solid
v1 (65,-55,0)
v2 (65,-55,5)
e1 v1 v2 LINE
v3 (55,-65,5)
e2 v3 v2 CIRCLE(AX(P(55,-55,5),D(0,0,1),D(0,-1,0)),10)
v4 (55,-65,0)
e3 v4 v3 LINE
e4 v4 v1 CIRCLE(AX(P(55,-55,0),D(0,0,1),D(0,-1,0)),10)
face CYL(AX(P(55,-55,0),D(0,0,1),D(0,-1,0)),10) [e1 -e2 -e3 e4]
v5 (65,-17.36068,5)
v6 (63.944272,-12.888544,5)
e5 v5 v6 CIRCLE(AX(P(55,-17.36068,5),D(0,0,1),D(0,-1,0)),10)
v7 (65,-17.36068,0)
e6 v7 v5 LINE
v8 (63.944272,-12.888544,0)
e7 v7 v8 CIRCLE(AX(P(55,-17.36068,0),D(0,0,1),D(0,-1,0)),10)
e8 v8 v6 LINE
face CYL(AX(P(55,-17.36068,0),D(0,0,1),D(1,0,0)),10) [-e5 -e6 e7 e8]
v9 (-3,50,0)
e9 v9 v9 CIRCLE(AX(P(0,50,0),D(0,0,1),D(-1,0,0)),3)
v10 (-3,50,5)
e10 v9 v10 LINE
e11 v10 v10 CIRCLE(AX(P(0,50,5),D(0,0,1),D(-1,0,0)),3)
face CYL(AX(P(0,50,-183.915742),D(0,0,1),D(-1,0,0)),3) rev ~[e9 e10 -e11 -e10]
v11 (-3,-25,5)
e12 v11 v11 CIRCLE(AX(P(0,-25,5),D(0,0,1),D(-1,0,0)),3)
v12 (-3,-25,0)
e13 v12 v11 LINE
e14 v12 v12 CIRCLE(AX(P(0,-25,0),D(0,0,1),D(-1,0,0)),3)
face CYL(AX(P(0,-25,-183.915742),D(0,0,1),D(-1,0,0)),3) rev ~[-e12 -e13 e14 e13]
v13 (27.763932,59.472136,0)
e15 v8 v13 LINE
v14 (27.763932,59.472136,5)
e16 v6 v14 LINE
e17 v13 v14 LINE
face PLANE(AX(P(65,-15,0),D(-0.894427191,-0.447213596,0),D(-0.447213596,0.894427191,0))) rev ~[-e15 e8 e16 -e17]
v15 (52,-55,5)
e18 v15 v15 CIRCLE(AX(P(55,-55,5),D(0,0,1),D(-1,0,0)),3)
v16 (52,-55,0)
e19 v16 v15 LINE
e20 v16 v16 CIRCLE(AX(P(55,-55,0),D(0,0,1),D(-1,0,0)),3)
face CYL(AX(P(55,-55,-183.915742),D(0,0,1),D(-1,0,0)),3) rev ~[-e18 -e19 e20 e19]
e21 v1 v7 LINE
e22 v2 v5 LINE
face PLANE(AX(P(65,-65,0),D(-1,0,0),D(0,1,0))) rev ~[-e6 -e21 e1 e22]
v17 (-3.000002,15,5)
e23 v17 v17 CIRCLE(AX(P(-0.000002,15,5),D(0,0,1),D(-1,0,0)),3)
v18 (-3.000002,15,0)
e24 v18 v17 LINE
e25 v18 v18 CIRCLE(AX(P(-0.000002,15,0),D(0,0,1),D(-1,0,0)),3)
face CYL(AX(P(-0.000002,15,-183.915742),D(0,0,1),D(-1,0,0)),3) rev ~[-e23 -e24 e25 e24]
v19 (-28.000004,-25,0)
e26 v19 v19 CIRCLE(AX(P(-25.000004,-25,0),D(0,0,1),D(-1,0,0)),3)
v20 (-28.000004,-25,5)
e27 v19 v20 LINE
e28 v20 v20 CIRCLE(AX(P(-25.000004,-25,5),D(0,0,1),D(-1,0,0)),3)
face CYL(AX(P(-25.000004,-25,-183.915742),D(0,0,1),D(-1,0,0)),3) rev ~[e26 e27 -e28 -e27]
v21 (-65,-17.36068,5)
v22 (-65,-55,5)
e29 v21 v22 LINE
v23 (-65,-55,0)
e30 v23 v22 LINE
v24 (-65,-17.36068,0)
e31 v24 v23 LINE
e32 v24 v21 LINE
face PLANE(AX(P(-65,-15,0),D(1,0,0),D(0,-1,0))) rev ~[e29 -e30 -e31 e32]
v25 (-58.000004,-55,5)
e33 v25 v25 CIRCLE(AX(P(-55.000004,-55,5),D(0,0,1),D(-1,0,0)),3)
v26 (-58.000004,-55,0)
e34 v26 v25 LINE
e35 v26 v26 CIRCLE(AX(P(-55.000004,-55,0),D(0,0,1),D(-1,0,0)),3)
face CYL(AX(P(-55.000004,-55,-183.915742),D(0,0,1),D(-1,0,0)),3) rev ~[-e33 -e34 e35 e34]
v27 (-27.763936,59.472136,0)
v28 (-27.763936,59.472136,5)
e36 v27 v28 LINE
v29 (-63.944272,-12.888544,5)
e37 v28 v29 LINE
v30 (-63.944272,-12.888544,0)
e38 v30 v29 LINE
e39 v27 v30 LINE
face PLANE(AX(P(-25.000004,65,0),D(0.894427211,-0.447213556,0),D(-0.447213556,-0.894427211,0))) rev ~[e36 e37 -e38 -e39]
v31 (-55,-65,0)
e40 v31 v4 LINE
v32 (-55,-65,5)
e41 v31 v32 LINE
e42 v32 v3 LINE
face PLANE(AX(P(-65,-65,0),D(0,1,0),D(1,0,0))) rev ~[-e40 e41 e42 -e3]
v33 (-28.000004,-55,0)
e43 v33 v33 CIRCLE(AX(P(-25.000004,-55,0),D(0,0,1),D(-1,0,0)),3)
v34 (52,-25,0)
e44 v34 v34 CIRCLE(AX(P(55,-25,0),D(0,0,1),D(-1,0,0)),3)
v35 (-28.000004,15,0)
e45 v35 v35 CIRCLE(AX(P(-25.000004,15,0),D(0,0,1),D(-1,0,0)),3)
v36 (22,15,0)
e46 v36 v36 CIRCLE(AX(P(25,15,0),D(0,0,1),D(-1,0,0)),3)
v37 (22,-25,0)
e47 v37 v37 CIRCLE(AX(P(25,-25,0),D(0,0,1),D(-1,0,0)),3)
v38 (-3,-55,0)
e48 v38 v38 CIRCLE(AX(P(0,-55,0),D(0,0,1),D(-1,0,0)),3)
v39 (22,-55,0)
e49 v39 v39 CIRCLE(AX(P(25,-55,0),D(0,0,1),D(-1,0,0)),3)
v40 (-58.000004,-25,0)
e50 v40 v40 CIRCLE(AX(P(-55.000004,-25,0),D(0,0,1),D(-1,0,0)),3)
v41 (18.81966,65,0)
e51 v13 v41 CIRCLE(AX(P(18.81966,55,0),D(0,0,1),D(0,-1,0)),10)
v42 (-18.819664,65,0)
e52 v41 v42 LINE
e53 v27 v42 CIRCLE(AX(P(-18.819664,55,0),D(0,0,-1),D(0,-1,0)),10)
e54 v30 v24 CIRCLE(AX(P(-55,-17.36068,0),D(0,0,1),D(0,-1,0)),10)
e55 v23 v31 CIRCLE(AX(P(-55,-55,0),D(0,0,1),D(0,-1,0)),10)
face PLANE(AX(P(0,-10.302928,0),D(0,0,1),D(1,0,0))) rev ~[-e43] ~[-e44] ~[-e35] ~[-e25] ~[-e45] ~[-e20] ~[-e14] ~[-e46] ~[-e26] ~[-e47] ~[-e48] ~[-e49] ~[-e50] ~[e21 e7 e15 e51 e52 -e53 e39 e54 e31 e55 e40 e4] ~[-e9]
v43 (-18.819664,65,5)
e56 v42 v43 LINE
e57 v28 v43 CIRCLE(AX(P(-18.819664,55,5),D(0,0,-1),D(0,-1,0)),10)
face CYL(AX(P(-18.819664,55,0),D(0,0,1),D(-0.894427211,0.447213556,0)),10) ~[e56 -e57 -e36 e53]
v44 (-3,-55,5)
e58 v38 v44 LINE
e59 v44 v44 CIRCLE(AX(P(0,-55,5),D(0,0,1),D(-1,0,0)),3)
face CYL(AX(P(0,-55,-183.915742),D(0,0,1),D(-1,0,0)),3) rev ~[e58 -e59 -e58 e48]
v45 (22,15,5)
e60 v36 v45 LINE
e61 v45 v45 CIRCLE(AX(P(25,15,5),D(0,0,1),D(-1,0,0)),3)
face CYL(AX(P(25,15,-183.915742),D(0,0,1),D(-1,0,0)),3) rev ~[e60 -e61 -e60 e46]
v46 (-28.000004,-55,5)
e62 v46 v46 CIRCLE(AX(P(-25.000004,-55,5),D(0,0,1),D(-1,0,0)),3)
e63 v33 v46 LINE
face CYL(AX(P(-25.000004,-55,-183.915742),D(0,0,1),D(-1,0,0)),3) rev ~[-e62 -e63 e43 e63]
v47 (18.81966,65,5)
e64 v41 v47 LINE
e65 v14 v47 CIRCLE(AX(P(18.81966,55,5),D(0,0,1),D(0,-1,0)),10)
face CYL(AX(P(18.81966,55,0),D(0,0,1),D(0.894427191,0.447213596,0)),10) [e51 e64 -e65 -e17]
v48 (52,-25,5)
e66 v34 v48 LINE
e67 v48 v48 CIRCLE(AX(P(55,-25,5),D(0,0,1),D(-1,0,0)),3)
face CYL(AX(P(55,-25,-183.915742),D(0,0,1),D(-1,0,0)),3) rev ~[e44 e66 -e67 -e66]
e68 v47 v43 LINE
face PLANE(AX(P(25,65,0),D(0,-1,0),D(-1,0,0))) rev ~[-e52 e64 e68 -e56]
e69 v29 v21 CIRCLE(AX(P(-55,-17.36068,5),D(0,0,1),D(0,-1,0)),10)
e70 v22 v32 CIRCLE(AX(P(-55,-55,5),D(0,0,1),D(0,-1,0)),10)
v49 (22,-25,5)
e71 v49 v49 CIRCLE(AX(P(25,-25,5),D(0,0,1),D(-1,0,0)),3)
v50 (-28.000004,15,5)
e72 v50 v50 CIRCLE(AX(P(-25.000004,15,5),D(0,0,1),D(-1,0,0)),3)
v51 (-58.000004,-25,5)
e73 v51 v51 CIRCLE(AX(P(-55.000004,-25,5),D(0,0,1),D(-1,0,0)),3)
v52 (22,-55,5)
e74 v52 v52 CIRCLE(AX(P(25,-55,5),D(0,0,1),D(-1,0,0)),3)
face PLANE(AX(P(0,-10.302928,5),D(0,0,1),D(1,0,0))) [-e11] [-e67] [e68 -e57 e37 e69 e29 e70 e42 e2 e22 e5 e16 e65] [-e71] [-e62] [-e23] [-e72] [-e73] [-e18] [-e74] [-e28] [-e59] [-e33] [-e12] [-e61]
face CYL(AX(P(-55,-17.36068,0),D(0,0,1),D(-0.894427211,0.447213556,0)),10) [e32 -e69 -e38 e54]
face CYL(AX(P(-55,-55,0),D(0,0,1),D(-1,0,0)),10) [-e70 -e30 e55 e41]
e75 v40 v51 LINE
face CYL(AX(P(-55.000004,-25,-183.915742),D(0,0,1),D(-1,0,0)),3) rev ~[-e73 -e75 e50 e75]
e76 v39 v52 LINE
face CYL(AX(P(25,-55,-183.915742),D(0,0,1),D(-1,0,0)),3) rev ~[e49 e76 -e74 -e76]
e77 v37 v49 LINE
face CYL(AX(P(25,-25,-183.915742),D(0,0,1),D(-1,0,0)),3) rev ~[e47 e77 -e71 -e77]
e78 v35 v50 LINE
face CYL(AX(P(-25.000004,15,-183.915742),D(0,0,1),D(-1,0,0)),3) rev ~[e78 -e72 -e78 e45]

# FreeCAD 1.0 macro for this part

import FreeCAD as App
import Part
import Sketcher
from FreeCAD import Vector


def edges_at(feature, points):
    """Names of the edges that pass closest to the given points."""
    edges = feature.Shape.Edges
    near = lambda p: min(range(len(edges)), key=lambda i: edges[i].distToShape(Part.Vertex(*p))[0])
    return sorted({f"Edge{near(p) + 1}" for p in points})

doc = App.newDocument("Part")
body = doc.addObject("PartDesign::Body", "Body")

# Sketch on XY plane
sketch1 = body.newObject("Sketcher::SketchObject", "Sketch")
sketch1.AttachmentSupport = (doc.getObject("XY_Plane"), [""])
sketch1.MapMode = "FlatFace"
sketch1.addGeometry([
    Part.LineSegment(Vector(-25, 65, 0), Vector(-65, -15, 0)),  # 0
    Part.LineSegment(Vector(-65, -15, 0), Vector(-65, -65, 0)),  # 1
    Part.LineSegment(Vector(-65, -65, 0), Vector(65, -65, 0)),  # 2
    Part.LineSegment(Vector(65, -65, 0), Vector(65, -15, 0)),  # 3
    Part.LineSegment(Vector(65, -15, 0), Vector(25, 65, 0)),  # 4
    Part.LineSegment(Vector(25, 65, 0), Vector(-25, 65, 0)),  # 5
], False)
sketch1.addConstraint([
    Sketcher.Constraint("Coincident", 0, 2, 1, 1),
    Sketcher.Constraint("Coincident", 1, 2, 2, 1),
    Sketcher.Constraint("Coincident", 2, 2, 3, 1),
    Sketcher.Constraint("Coincident", 3, 2, 4, 1),
    Sketcher.Constraint("Coincident", 4, 2, 5, 1),
    Sketcher.Constraint("Coincident", 5, 2, 0, 1),
    Sketcher.Constraint("Vertical", 1),
    Sketcher.Constraint("Horizontal", 2),
    Sketcher.Constraint("Vertical", 3),
    Sketcher.Constraint("Horizontal", 5),
    Sketcher.Constraint("Symmetric", 0, 2, 3, 2, -2),
    Sketcher.Constraint("Equal", 0, 4),
    Sketcher.Constraint("DistanceX", 2, 1, 2, 2, 130.0),
    Sketcher.Constraint("DistanceY", 1, 2, 1, 1, 50.0),
    Sketcher.Constraint("DistanceY", 0, 2, -1, 1, 15.0),
    Sketcher.Constraint("DistanceX", -1, 1, 4, 2, 25.0),
    Sketcher.Constraint("DistanceY", -1, 1, 4, 2, 65.0),
])
pad1 = body.newObject("PartDesign::Pad", "Pad")
pad1.Profile = sketch1
pad1.Length = 5
doc.recompute()

fillet = body.newObject("PartDesign::Fillet", "Fillet")
fillet.Base = (pad1, edges_at(pad1, [
    (-65, -65, 2.5),
    (-65, -15, 2.5),
    (-25, 65, 2.5),
    (25, 65, 2.5),
    (65, -15, 2.5),
    (65, -65, 2.5),
]))
fillet.Radius = 10

# Sketch on XY plane
sketch2 = body.newObject("Sketcher::SketchObject", "Sketch001")
sketch2.AttachmentSupport = (doc.getObject("XY_Plane"), [""])
sketch2.MapMode = "FlatFace"
sketch2.addGeometry([
    Part.Circle(Vector(-55, -25, 0), Vector(0, 0, 1), 3),  # 0
    Part.Circle(Vector(-25, -25, 0), Vector(0, 0, 1), 3),  # 1
    Part.Circle(Vector(-55, -55, 0), Vector(0, 0, 1), 3),  # 2
    Part.Circle(Vector(-25, -55, 0), Vector(0, 0, 1), 3),  # 3
    Part.Circle(Vector(25, -55, 0), Vector(0, 0, 1), 3),  # 4
    Part.Circle(Vector(25, -25, 0), Vector(0, 0, 1), 3),  # 5
    Part.Circle(Vector(55, -25, 0), Vector(0, 0, 1), 3),  # 6
    Part.Circle(Vector(55, -55, 0), Vector(0, 0, 1), 3),  # 7
    Part.Circle(Vector(0, 50, 0), Vector(0, 0, 1), 3),  # 8
    Part.Circle(Vector(0, -55, 0), Vector(0, 0, 1), 3),  # 9
    Part.Circle(Vector(0, -25, 0), Vector(0, 0, 1), 3),  # 10
    Part.Circle(Vector(25, 15, 0), Vector(0, 0, 1), 3),  # 11
    Part.Circle(Vector(0, 15, 0), Vector(0, 0, 1), 3),  # 12
    Part.Circle(Vector(-25, 15, 0), Vector(0, 0, 1), 3),  # 13
], False)
sketch2.addConstraint([
    Sketcher.Constraint("Equal", 0, 1),
    Sketcher.Constraint("Equal", 1, 2),
    Sketcher.Constraint("Equal", 2, 3),
    Sketcher.Constraint("Equal", 3, 4),
    Sketcher.Constraint("Equal", 4, 5),
    Sketcher.Constraint("Equal", 5, 6),
    Sketcher.Constraint("Equal", 6, 7),
    Sketcher.Constraint("Equal", 7, 8),
    Sketcher.Constraint("Equal", 8, 9),
    Sketcher.Constraint("Equal", 9, 10),
    Sketcher.Constraint("Equal", 10, 11),
    Sketcher.Constraint("Equal", 11, 12),
    Sketcher.Constraint("Equal", 12, 13),
    Sketcher.Constraint("Symmetric", 3, 3, 4, 3, -2),
    Sketcher.Constraint("Symmetric", 1, 3, 5, 3, -2),
    Sketcher.Constraint("Symmetric", 0, 3, 6, 3, -2),
    Sketcher.Constraint("Symmetric", 2, 3, 7, 3, -2),
    Sketcher.Constraint("Symmetric", 11, 3, 13, 3, -2),
    Sketcher.Constraint("PointOnObject", 8, 3, -2),
    Sketcher.Constraint("PointOnObject", 9, 3, -2),
    Sketcher.Constraint("PointOnObject", 10, 3, -2),
    Sketcher.Constraint("Horizontal", 0, 3, 1, 3),
    Sketcher.Constraint("Horizontal", 2, 3, 3, 3),
    Sketcher.Constraint("Horizontal", 7, 3, 9, 3),
    Sketcher.Constraint("Horizontal", 6, 3, 10, 3),
    Sketcher.Constraint("Horizontal", 11, 3, 12, 3),
    Sketcher.Constraint("Vertical", 0, 3, 2, 3),
    Sketcher.Constraint("Vertical", 1, 3, 3, 3),
    Sketcher.Constraint("Vertical", 5, 3, 11, 3),
    Sketcher.Constraint("Diameter", 0, 6.0),
    Sketcher.Constraint("DistanceY", 0, 3, -1, 1, 25.0),
    Sketcher.Constraint("DistanceY", 2, 3, -1, 1, 55.0),
    Sketcher.Constraint("DistanceX", -1, 1, 4, 3, 25.0),
    Sketcher.Constraint("DistanceX", -1, 1, 6, 3, 55.0),
    Sketcher.Constraint("DistanceY", -1, 1, 8, 3, 50.0),
    Sketcher.Constraint("DistanceY", -1, 1, 11, 3, 15.0),
    Sketcher.Constraint("DistanceX", 12, 3, 11, 3, 25.000002),
])
doc.recompute()
hole = body.newObject("PartDesign::Hole", "Hole")
hole.Profile = sketch2
hole.ThreadType = "None"
hole.Diameter = 6
hole.DepthType = "ThroughAll"
hole.Reversed = True

doc.recompute()
